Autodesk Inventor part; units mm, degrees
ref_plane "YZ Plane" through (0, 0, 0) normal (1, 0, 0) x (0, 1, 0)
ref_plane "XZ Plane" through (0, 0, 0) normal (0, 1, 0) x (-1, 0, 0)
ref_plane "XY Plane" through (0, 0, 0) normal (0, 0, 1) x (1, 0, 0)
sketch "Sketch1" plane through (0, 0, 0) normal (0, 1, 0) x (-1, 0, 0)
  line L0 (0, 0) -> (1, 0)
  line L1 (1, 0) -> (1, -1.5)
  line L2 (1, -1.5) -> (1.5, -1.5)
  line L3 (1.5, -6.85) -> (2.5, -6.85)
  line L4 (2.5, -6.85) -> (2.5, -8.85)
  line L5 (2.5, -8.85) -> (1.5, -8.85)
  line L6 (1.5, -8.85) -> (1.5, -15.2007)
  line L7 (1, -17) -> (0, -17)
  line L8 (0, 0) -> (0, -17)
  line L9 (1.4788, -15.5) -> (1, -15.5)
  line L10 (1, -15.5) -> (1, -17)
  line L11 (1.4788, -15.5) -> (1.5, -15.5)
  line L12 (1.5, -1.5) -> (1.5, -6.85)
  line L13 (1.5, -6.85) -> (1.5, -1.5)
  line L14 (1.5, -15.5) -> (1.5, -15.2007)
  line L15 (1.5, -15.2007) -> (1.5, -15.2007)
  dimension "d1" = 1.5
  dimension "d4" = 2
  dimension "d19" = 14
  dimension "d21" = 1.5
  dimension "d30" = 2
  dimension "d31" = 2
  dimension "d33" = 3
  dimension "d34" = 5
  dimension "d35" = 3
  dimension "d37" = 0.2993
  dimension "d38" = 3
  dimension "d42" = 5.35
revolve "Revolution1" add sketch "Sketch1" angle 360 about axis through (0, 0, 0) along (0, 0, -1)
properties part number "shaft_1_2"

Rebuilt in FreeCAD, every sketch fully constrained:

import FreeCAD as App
import Part
import Sketcher

doc = App.newDocument("Part")
body = doc.addObject("PartDesign::Body", "Body")

# Sketch on XZ plane
sketch1 = doc.addObject("Sketcher::SketchObject", "Sketch")
body.addObject(sketch1)
sketch1.AttachmentSupport = (doc.XZ_Plane, [""])
sketch1.MapMode = "FlatFace"
sketch1.addGeometry([
    Part.LineSegment(App.Vector(-1, 0, 0), App.Vector(0, 0, 0)),  # 0
    Part.LineSegment(App.Vector(0, 0, 0), App.Vector(0, -17, 0)),  # 1
    Part.LineSegment(App.Vector(0, -17, 0), App.Vector(-1, -17, 0)),  # 2
    Part.LineSegment(App.Vector(-1, -17, 0), App.Vector(-1, -15.5, 0)),  # 3
    Part.LineSegment(App.Vector(-1, -15.5, 0), App.Vector(-1.5, -15.5, 0)),  # 4
    Part.LineSegment(App.Vector(-1.5, -15.5, 0), App.Vector(-1.5, -8.85, 0)),  # 5
    Part.LineSegment(App.Vector(-1.5, -8.85, 0), App.Vector(-2.5, -8.85, 0)),  # 6
    Part.LineSegment(App.Vector(-2.5, -8.85, 0), App.Vector(-2.5, -6.85, 0)),  # 7
    Part.LineSegment(App.Vector(-2.5, -6.85, 0), App.Vector(-1.5, -6.85, 0)),  # 8
    Part.LineSegment(App.Vector(-1.5, -6.85, 0), App.Vector(-1.5, -1.5, 0)),  # 9
    Part.LineSegment(App.Vector(-1.5, -1.5, 0), App.Vector(-1, -1.5, 0)),  # 10
    Part.LineSegment(App.Vector(-1, -1.5, 0), App.Vector(-1, 0, 0)),  # 11
], False)
sketch1.addConstraint([
    Sketcher.Constraint("Coincident", 0, 2, 1, 1),
    Sketcher.Constraint("Coincident", 1, 2, 2, 1),
    Sketcher.Constraint("Coincident", 2, 2, 3, 1),
    Sketcher.Constraint("Coincident", 3, 2, 4, 1),
    Sketcher.Constraint("Coincident", 4, 2, 5, 1),
    Sketcher.Constraint("Coincident", 5, 2, 6, 1),
    Sketcher.Constraint("Coincident", 6, 2, 7, 1),
    Sketcher.Constraint("Coincident", 7, 2, 8, 1),
    Sketcher.Constraint("Coincident", 8, 2, 9, 1),
    Sketcher.Constraint("Coincident", 9, 2, 10, 1),
    Sketcher.Constraint("Coincident", 10, 2, 11, 1),
    Sketcher.Constraint("Coincident", 11, 2, 0, 1),
    Sketcher.Constraint("Horizontal", 0),
    Sketcher.Constraint("Vertical", 1),
    Sketcher.Constraint("Horizontal", 2),
    Sketcher.Constraint("Vertical", 3),
    Sketcher.Constraint("Horizontal", 4),
    Sketcher.Constraint("Vertical", 5),
    Sketcher.Constraint("Horizontal", 6),
    Sketcher.Constraint("Vertical", 7),
    Sketcher.Constraint("Horizontal", 8),
    Sketcher.Constraint("Vertical", 9),
    Sketcher.Constraint("Horizontal", 10),
    Sketcher.Constraint("Vertical", 11),
    Sketcher.Constraint("Coincident", 0, 2, -1, 1),
    Sketcher.Constraint("Vertical", 5, 2, 8, 2),
    Sketcher.Constraint("Vertical", 3, 2, 10, 2),
    Sketcher.Constraint("Equal", 2, 6),
    Sketcher.Constraint("Equal", 3, 11),
    Sketcher.Constraint("DistanceY", 7, 1, 7, 2, 2.0),
    Sketcher.Constraint("DistanceY", 3, 1, 3, 2, 1.5),
    Sketcher.Constraint("DistanceY", 9, 1, 9, 2, 5.35),
    Sketcher.Constraint("DistanceX", 4, 2, -1, 1, 1.5),
    Sketcher.Constraint("DistanceX", 0, 1, 0, 2, 1.0),
    Sketcher.Constraint("DistanceY", 1, 2, 1, 1, 17.0),
])
revolution = doc.addObject("PartDesign::Revolution", "Revolution")
body.addObject(revolution)
revolution.Profile = sketch1
revolution.ReferenceAxis = (sketch1, ["V_Axis"])
revolution.Angle = 360

doc.recompute()
